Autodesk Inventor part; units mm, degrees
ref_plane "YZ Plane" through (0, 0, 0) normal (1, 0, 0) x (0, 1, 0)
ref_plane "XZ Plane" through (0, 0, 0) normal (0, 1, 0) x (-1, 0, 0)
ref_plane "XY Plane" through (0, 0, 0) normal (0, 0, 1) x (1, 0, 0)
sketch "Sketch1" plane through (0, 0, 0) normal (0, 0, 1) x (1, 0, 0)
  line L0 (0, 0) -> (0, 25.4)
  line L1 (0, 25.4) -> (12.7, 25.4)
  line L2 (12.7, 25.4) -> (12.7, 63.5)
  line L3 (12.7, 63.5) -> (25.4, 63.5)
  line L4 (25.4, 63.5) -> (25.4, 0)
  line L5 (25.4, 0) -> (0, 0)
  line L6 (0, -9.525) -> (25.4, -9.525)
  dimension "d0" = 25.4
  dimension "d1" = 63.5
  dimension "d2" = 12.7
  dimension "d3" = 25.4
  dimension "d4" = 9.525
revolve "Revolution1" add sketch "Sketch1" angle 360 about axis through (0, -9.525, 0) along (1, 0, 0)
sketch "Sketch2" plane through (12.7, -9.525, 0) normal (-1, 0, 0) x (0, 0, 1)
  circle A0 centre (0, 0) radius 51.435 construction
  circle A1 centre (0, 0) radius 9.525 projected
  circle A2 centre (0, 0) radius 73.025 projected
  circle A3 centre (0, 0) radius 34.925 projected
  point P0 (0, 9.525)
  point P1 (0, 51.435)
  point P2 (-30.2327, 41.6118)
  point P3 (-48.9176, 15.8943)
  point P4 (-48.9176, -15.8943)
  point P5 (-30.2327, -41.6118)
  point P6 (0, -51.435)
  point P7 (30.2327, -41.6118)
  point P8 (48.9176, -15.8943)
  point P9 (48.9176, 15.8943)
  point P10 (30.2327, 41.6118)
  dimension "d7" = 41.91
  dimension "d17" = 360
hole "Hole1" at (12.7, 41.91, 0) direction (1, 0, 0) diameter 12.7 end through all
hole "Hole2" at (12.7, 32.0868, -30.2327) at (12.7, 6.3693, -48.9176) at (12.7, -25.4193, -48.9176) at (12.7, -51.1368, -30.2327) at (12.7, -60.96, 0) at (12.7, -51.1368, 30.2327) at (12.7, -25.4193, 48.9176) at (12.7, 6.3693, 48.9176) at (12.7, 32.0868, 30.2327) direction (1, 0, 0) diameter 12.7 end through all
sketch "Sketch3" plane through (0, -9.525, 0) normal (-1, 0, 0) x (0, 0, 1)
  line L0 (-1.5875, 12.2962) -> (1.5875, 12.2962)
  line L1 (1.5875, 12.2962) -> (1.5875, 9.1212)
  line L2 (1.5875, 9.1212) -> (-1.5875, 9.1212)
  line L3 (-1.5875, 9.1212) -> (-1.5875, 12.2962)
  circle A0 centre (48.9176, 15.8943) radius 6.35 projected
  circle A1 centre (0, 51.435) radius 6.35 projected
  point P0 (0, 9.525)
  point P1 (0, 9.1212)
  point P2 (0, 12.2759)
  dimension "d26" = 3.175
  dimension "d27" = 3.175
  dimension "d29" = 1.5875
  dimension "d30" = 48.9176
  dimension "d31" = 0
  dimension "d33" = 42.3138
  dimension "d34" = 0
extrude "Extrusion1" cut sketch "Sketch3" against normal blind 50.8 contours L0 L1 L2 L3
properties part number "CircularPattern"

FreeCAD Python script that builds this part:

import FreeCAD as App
import Part
import Sketcher
from FreeCAD import Vector
Q = App.Units.Quantity

doc = App.newDocument("Part")
body = doc.addObject("PartDesign::Body", "Body")

sketch1 = body.newObject("Sketcher::SketchObject", "Sketch")
sketch1.AttachmentSupport = (doc.getObject("XY_Plane"), [""])
sketch1.MapMode = "FlatFace"
sketch1.addGeometry([
    Part.LineSegment(Vector(0, 25.4, 0), Vector(0, 0, 0)),
    Part.LineSegment(Vector(0, 0, 0), Vector(25.4, 0, 0)),
    Part.LineSegment(Vector(25.4, 0, 0), Vector(25.4, 63.5, 0)),
    Part.LineSegment(Vector(25.4, 63.5, 0), Vector(12.7, 63.5, 0)),
    Part.LineSegment(Vector(12.7, 63.5, 0), Vector(12.7, 25.4, 0)),
    Part.LineSegment(Vector(12.7, 25.4, 0), Vector(0, 25.4, 0)),
], False)
sketch1.addGeometry(Part.LineSegment(Vector(0, -9.525, 0), Vector(25.4, -9.525, 0)), True)
sketch1.addConstraint([
    Sketcher.Constraint("Coincident", 0, 2, 1, 1),
    Sketcher.Constraint("Coincident", 1, 2, 2, 1),
    Sketcher.Constraint("Coincident", 2, 2, 3, 1),
    Sketcher.Constraint("Coincident", 3, 2, 4, 1),
    Sketcher.Constraint("Coincident", 4, 2, 5, 1),
    Sketcher.Constraint("Coincident", 5, 2, 0, 1),
    Sketcher.Constraint("Vertical", 0),
    Sketcher.Constraint("Horizontal", 1),
    Sketcher.Constraint("Vertical", 2),
    Sketcher.Constraint("Horizontal", 3),
    Sketcher.Constraint("Vertical", 4),
    Sketcher.Constraint("Horizontal", 5),
    Sketcher.Constraint("Horizontal", 6),
    Sketcher.Constraint("Coincident", 0, 2, -1, 1),
    Sketcher.Constraint("PointOnObject", 6, 1, -2),
    Sketcher.Constraint("Vertical", 2, 2, 6, 2),
    Sketcher.Constraint("Equal", 3, 5),
    Sketcher.Constraint("Equal", 6, 0),
    Sketcher.Constraint("DistanceX", 1, 1, 1, 2, Q("1 in")),
    Sketcher.Constraint("DistanceY", 2, 1, 2, 2, Q("2.5 in")),
    Sketcher.Constraint("DistanceY", 6, 1, -1, 1, Q("0.375 in")),
])
revolution = body.newObject("PartDesign::Revolution", "Revolution")
revolution.Profile = sketch1
revolution.ReferenceAxis = (sketch1, ["Axis0"])
revolution.Angle = 360

sketch2 = body.newObject("Sketcher::SketchObject", "Sketch001")
sketch2.AttachmentSupport = (doc.getObject("YZ_Plane"), [""])
sketch2.MapMode = "FlatFace"
sketch2.AttachmentOffset = App.Placement(Vector(0, 0, 0.5 * 25.4), App.Rotation())
sketch2.addGeometry(Part.Circle(Vector(41.91, 0, 0), Vector(0, 0, 1), 6.35), False)
sketch2.addConstraint([
    Sketcher.Constraint("PointOnObject", 0, 3, -1),
    Sketcher.Constraint("Diameter", 0, Q("0.5 in")),
    Sketcher.Constraint("DistanceX", -1, 1, 0, 3, Q("1.65 in")),
])
doc.recompute()
hole = body.newObject("PartDesign::Hole", "Hole")
hole.Profile = sketch2
hole.ThreadType = "None"
hole.Diameter = Q("0.5 in")
hole.DepthType = "ThroughAll"
hole.Reversed = True

sketch3 = body.newObject("Sketcher::SketchObject", "Sketch002")
sketch3.AttachmentSupport = (doc.getObject("YZ_Plane"), [""])
sketch3.MapMode = "FlatFace"
sketch3.AttachmentOffset = App.Placement(Vector(0, 0, 0.5 * 25.4), App.Rotation())
sketch3.addGeometry([
    Part.Circle(Vector(32.0868, -30.2327, 0), Vector(0, 0, 1), 6.35),
    Part.Circle(Vector(6.3693, -48.9176, 0), Vector(0, 0, 1), 6.35),
    Part.Circle(Vector(-25.4193, -48.9176, 0), Vector(0, 0, 1), 6.35),
    Part.Circle(Vector(-51.1368, -30.2327, 0), Vector(0, 0, 1), 6.35),
    Part.Circle(Vector(-60.96, 0, 0), Vector(0, 0, 1), 6.35),
    Part.Circle(Vector(-51.1368, 30.2327, 0), Vector(0, 0, 1), 6.35),
    Part.Circle(Vector(-25.4193, 48.9176, 0), Vector(0, 0, 1), 6.35),
    Part.Circle(Vector(6.3693, 48.9176, 0), Vector(0, 0, 1), 6.35),
    Part.Circle(Vector(32.0868, 30.2327, 0), Vector(0, 0, 1), 6.35),
], False)
sketch3.addConstraint([
    Sketcher.Constraint("Equal", 0, 1),
    Sketcher.Constraint("Equal", 1, 2),
    Sketcher.Constraint("Equal", 2, 3),
    Sketcher.Constraint("Equal", 3, 4),
    Sketcher.Constraint("Equal", 4, 5),
    Sketcher.Constraint("Equal", 5, 6),
    Sketcher.Constraint("Equal", 6, 7),
    Sketcher.Constraint("Equal", 7, 8),
    Sketcher.Constraint("Symmetric", 3, 3, 5, 3, -1),
    Sketcher.Constraint("Symmetric", 2, 3, 6, 3, -1),
    Sketcher.Constraint("Symmetric", 1, 3, 7, 3, -1),
    Sketcher.Constraint("Symmetric", 0, 3, 8, 3, -1),
    Sketcher.Constraint("PointOnObject", 4, 3, -1),
    Sketcher.Constraint("Horizontal", 1, 3, 2, 3),
    Sketcher.Constraint("Horizontal", 0, 3, 3, 3),
    Sketcher.Constraint("Diameter", 0, Q("0.5 in")),
    Sketcher.Constraint("DistanceX", 4, 3, -1, 1, Q("2.4 in")),
    Sketcher.Constraint("DistanceY", 1, 3, -1, 1, Q("1.9259 in")),
    Sketcher.Constraint("DistanceX", 1, 3, 0, 3, Q("1.0125 in")),
    Sketcher.Constraint("DistanceX", 3, 3, 2, 3, Q("1.0125 in")),
    Sketcher.Constraint("DistanceX", -1, 1, 0, 3, Q("32.0868 mm")),
    Sketcher.Constraint("DistanceY", 0, 3, -1, 1, Q("30.2327 mm")),
    Sketcher.Constraint("DistanceX", 2, 3, -1, 1, Q("25.4193 mm")),
])
doc.recompute()
hole2 = body.newObject("PartDesign::Hole", "Hole001")
hole2.Profile = sketch3
hole2.ThreadType = "None"
hole2.Diameter = Q("0.5 in")
hole2.DepthType = "ThroughAll"
hole2.Reversed = True

sketch4 = body.newObject("Sketcher::SketchObject", "Sketch003")
sketch4.AttachmentSupport = (doc.getObject("YZ_Plane"), [""])
sketch4.MapMode = "FlatFace"
sketch4.addGeometry([
    Part.LineSegment(Vector(2.7712, 1.5875, 0), Vector(2.7712, -1.5875, 0)),
    Part.LineSegment(Vector(2.7712, -1.5875, 0), Vector(-0.4038, -1.5875, 0)),
    Part.LineSegment(Vector(-0.4038, -1.5875, 0), Vector(-0.4038, 1.5875, 0)),
    Part.LineSegment(Vector(-0.4038, 1.5875, 0), Vector(2.7712, 1.5875, 0)),
], False)
sketch4.addConstraint([
    Sketcher.Constraint("Coincident", 0, 2, 1, 1),
    Sketcher.Constraint("Coincident", 1, 2, 2, 1),
    Sketcher.Constraint("Coincident", 2, 2, 3, 1),
    Sketcher.Constraint("Coincident", 3, 2, 0, 1),
    Sketcher.Constraint("Vertical", 0),
    Sketcher.Constraint("Horizontal", 1),
    Sketcher.Constraint("Vertical", 2),
    Sketcher.Constraint("Horizontal", 3),
    Sketcher.Constraint("Equal", 3, 0),
    Sketcher.Constraint("DistanceX", 1, 2, 1, 1, Q("0.125 in")),
    Sketcher.Constraint("DistanceY", 0, 2, -1, 1, Q("0.0625 in")),
    Sketcher.Constraint("DistanceX", -1, 1, 0, 2, Q("0.1091 in")),
])
pocket1 = body.newObject("PartDesign::Pocket", "Pocket")
pocket1.Profile = sketch4
pocket1.Length = Q("2 in")
pocket1.Reversed = True

doc.recompute()
